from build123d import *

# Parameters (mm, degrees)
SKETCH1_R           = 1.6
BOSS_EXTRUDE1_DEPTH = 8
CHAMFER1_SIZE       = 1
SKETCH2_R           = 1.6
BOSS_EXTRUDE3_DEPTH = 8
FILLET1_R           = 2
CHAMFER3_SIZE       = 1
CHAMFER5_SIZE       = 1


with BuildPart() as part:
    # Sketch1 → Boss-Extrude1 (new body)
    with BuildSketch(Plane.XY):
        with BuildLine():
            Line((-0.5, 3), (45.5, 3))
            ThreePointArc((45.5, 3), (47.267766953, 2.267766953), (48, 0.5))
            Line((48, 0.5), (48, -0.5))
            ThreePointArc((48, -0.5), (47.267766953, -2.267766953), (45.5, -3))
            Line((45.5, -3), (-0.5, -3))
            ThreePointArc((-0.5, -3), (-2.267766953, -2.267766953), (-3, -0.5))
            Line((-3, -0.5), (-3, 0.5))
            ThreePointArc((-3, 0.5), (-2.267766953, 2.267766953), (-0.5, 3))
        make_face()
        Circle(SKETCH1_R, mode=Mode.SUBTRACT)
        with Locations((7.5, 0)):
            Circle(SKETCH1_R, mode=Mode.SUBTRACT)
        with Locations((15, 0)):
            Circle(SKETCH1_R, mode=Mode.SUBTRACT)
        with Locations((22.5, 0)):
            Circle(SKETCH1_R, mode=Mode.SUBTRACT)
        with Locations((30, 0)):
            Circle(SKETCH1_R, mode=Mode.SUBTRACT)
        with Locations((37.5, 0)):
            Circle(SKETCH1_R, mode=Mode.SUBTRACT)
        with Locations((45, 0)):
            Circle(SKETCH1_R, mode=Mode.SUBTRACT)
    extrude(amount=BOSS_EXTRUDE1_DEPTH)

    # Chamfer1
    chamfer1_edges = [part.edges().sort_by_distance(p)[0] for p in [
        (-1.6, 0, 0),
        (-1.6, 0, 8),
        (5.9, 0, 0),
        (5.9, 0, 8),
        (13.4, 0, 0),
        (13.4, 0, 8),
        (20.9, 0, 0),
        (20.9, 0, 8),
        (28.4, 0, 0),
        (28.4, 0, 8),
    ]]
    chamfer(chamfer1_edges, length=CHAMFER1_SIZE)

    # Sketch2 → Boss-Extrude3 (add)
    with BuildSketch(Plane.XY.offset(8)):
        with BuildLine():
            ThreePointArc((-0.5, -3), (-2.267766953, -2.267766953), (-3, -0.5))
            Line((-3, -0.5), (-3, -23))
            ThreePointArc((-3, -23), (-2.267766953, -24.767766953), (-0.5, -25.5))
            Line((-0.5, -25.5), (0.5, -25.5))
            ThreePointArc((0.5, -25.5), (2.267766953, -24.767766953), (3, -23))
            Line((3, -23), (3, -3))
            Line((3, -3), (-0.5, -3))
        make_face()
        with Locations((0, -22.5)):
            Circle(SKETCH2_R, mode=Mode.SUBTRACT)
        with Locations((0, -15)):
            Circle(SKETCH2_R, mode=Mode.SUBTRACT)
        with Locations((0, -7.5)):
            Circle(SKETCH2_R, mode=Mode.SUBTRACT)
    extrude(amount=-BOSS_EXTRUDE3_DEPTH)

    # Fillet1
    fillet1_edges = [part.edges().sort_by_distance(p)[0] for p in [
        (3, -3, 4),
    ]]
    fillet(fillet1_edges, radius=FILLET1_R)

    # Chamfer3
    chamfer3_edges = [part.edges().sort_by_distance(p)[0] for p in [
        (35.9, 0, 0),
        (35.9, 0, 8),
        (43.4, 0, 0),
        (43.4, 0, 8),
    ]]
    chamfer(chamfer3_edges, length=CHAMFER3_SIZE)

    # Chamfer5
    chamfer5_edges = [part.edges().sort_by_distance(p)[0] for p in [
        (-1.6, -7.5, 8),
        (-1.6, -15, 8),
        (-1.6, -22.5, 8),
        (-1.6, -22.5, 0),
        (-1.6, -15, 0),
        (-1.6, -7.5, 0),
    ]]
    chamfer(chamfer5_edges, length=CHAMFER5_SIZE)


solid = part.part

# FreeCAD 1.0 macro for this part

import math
import FreeCAD as App
import Part
import Sketcher
from FreeCAD import Vector


def edges_at(feature, points):
    """Names of the edges that pass closest to the given points."""
    edges = feature.Shape.Edges
    near = lambda p: min(range(len(edges)), key=lambda i: edges[i].distToShape(Part.Vertex(*p))[0])
    return sorted({f"Edge{near(p) + 1}" for p in points})

doc = App.newDocument("Part")
body = doc.addObject("PartDesign::Body", "Body")

sketch1 = doc.addObject("Sketcher::SketchObject", "Sketch")
body.addObject(sketch1)
sketch1.AttachmentSupport = (doc.XY_Plane, [""])
sketch1.MapMode = "FlatFace"
sketch1.addGeometry([
    Part.LineSegment(Vector(45.5, 3, 0), Vector(-0.5, 3, 0)),
    Part.ArcOfCircle(Part.Circle(Vector(-0.5, 0.5, 0), Vector(0, 0, 1), 2.5), math.radians(90), math.radians(180)),
    Part.LineSegment(Vector(-3, 0.5, 0), Vector(-3, -0.5, 0)),
    Part.ArcOfCircle(Part.Circle(Vector(-0.5, -0.5, 0), Vector(0, 0, 1), 2.5), math.radians(180), math.radians(270)),
    Part.LineSegment(Vector(-0.5, -3, 0), Vector(45.5, -3, 0)),
    Part.ArcOfCircle(Part.Circle(Vector(45.5, -0.5, 0), Vector(0, 0, 1), 2.5), math.radians(-90), math.radians(0)),
    Part.LineSegment(Vector(48, -0.5, 0), Vector(48, 0.5, 0)),
    Part.ArcOfCircle(Part.Circle(Vector(45.5, 0.5, 0), Vector(0, 0, 1), 2.5), math.radians(0), math.radians(90)),
    Part.Circle(Vector(45, 0, 0), Vector(0, 0, 1), 1.6),
    Part.Circle(Vector(37.5, 0, 0), Vector(0, 0, 1), 1.6),
    Part.Circle(Vector(30, 0, 0), Vector(0, 0, 1), 1.6),
    Part.Circle(Vector(22.5, 0, 0), Vector(0, 0, 1), 1.6),
    Part.Circle(Vector(15, 0, 0), Vector(0, 0, 1), 1.6),
    Part.Circle(Vector(7.5, 0, 0), Vector(0, 0, 1), 1.6),
    Part.Circle(Vector(0, 0, 0), Vector(0, 0, 1), 1.6),
], False)
sketch1.addConstraint([
    Sketcher.Constraint("Tangent", 0, 2, 1, 1),
    Sketcher.Constraint("Tangent", 1, 2, 2, 1),
    Sketcher.Constraint("Tangent", 2, 2, 3, 1),
    Sketcher.Constraint("Tangent", 3, 2, 4, 1),
    Sketcher.Constraint("Tangent", 4, 2, 5, 1),
    Sketcher.Constraint("Tangent", 5, 2, 6, 1),
    Sketcher.Constraint("Tangent", 6, 2, 7, 1),
    Sketcher.Constraint("Tangent", 7, 2, 0, 1),
    Sketcher.Constraint("Horizontal", 0),
    Sketcher.Constraint("Vertical", 2),
    Sketcher.Constraint("Horizontal", 4),
    Sketcher.Constraint("Vertical", 6),
    Sketcher.Constraint("Coincident", 14, 3, -1, 1),
    Sketcher.Constraint("Equal", 1, 3),
    Sketcher.Constraint("Equal", 3, 5),
    Sketcher.Constraint("Equal", 5, 7),
    Sketcher.Constraint("Equal", 8, 9),
    Sketcher.Constraint("Equal", 9, 10),
    Sketcher.Constraint("Equal", 10, 11),
    Sketcher.Constraint("Equal", 11, 12),
    Sketcher.Constraint("Equal", 12, 13),
    Sketcher.Constraint("Equal", 13, 14),
    Sketcher.Constraint("PointOnObject", 8, 3, -1),
    Sketcher.Constraint("PointOnObject", 9, 3, -1),
    Sketcher.Constraint("PointOnObject", 10, 3, -1),
    Sketcher.Constraint("PointOnObject", 11, 3, -1),
    Sketcher.Constraint("PointOnObject", 12, 3, -1),
    Sketcher.Constraint("PointOnObject", 13, 3, -1),
    Sketcher.Constraint("Diameter", 8, 3.2),
    Sketcher.Constraint("Radius", 1, 2.5),
    Sketcher.Constraint("DistanceX", 0, 2, 0, 1, 46.0),
    Sketcher.Constraint("DistanceY", 2, 2, 2, 1, 1.0),
    Sketcher.Constraint("DistanceX", -1, 1, 8, 3, 45.0),
    Sketcher.Constraint("DistanceX", -1, 1, 10, 3, 30.0),
    Sketcher.Constraint("DistanceX", -1, 1, 12, 3, 15.0),
    Sketcher.Constraint("DistanceY", -1, 1, 0, 2, 3.0),
    Sketcher.Constraint("DistanceX", 1, 2, -1, 1, 3.0),
    Sketcher.Constraint("DistanceX", 9, 3, 5, 3, 8.0),
    Sketcher.Constraint("DistanceX", 11, 3, 9, 3, 15.0),
    Sketcher.Constraint("DistanceX", 1, 3, 13, 3, 8.0),
])
pad1 = doc.addObject("PartDesign::Pad", "Pad")
body.addObject(pad1)
pad1.Profile = sketch1
pad1.Length = 8
doc.recompute()

chamfer = doc.addObject("PartDesign::Chamfer", "Chamfer")
body.addObject(chamfer)
chamfer.Base = (pad1, edges_at(pad1, [
    (-1.6, 0, 0),
    (-1.6, 0, 8),
    (5.9, 0, 0),
    (5.9, 0, 8),
    (13.4, 0, 0),
    (13.4, 0, 8),
    (20.9, 0, 0),
    (20.9, 0, 8),
    (28.4, 0, 0),
    (28.4, 0, 8),
]))
chamfer.Size = 1

sketch2 = doc.addObject("Sketcher::SketchObject", "Sketch001")
body.addObject(sketch2)
sketch2.AttachmentSupport = (doc.XY_Plane, [""])
sketch2.MapMode = "FlatFace"
sketch2.AttachmentOffset = App.Placement(Vector(0, 0, 8), App.Rotation())
sketch2.addGeometry([
    Part.ArcOfCircle(Part.Circle(Vector(-0.5, -0.5, 0), Vector(0, 0, 1), 2.5), math.radians(180), math.radians(270)),
    Part.LineSegment(Vector(-3, -0.5, 0), Vector(-3, -23, 0)),
    Part.ArcOfCircle(Part.Circle(Vector(-0.5, -23, 0), Vector(0, 0, 1), 2.5), math.radians(180), math.radians(270)),
    Part.LineSegment(Vector(-0.5, -25.5, 0), Vector(0.5, -25.5, 0)),
    Part.ArcOfCircle(Part.Circle(Vector(0.5, -23, 0), Vector(0, 0, 1), 2.5), math.radians(-90), math.radians(0)),
    Part.LineSegment(Vector(3, -23, 0), Vector(3, -3, 0)),
    Part.LineSegment(Vector(3, -3, 0), Vector(-0.5, -3, 0)),
    Part.Circle(Vector(0, -22.5, 0), Vector(0, 0, 1), 1.6),
    Part.Circle(Vector(0, -15, 0), Vector(0, 0, 1), 1.6),
    Part.Circle(Vector(0, -7.5, 0), Vector(0, 0, 1), 1.6),
], False)
sketch2.addConstraint([
    Sketcher.Constraint("Tangent", 0, 1, 1, 1),
    Sketcher.Constraint("Tangent", 1, 2, 2, 1),
    Sketcher.Constraint("Tangent", 2, 2, 3, 1),
    Sketcher.Constraint("Tangent", 3, 2, 4, 1),
    Sketcher.Constraint("Tangent", 4, 2, 5, 1),
    Sketcher.Constraint("Coincident", 5, 2, 6, 1),
    Sketcher.Constraint("Tangent", 6, 2, 0, 2),
    Sketcher.Constraint("Vertical", 1),
    Sketcher.Constraint("Horizontal", 3),
    Sketcher.Constraint("Vertical", 5),
    Sketcher.Constraint("Horizontal", 6),
    Sketcher.Constraint("Equal", 0, 2),
    Sketcher.Constraint("Equal", 2, 4),
    Sketcher.Constraint("Equal", 7, 8),
    Sketcher.Constraint("Equal", 8, 9),
    Sketcher.Constraint("PointOnObject", 7, 3, -2),
    Sketcher.Constraint("PointOnObject", 8, 3, -2),
    Sketcher.Constraint("PointOnObject", 9, 3, -2),
    Sketcher.Constraint("Diameter", 7, 3.2),
    Sketcher.Constraint("Radius", 0, 2.5),
    Sketcher.Constraint("DistanceX", 3, 1, 3, 2, 1.0),
    Sketcher.Constraint("DistanceY", 5, 1, 5, 2, 20.0),
    Sketcher.Constraint("DistanceY", 2, 3, -1, 1, 23.0),
    Sketcher.Constraint("DistanceY", 8, 3, -1, 1, 15.0),
    Sketcher.Constraint("DistanceX", 0, 1, -1, 1, 3.0),
    Sketcher.Constraint("DistanceY", 7, 3, 0, 3, 22.0),
    Sketcher.Constraint("DistanceY", 9, 3, 0, 3, 7.0),
])
pad2 = doc.addObject("PartDesign::Pad", "Pad001")
body.addObject(pad2)
pad2.Profile = sketch2
pad2.Length = 8
pad2.Reversed = True
doc.recompute()

fillet = doc.addObject("PartDesign::Fillet", "Fillet")
body.addObject(fillet)
fillet.Base = (pad2, edges_at(pad2, [(3, -3, 4)]))
fillet.Radius = 2
doc.recompute()

chamfer2 = doc.addObject("PartDesign::Chamfer", "Chamfer001")
body.addObject(chamfer2)
chamfer2.Base = (fillet, edges_at(fillet, [
    (35.9, 0, 0),
    (35.9, 0, 8),
    (43.4, 0, 0),
    (43.4, 0, 8),
]))
chamfer2.Size = 1
doc.recompute()

chamfer3 = doc.addObject("PartDesign::Chamfer", "Chamfer002")
body.addObject(chamfer3)
chamfer3.Base = (chamfer2, edges_at(chamfer2, [
    (-1.6, -7.5, 8),
    (-1.6, -15, 8),
    (-1.6, -22.5, 8),
    (-1.6, -22.5, 0),
    (-1.6, -15, 0),
    (-1.6, -7.5, 0),
]))
chamfer3.Size = 1

doc.recompute()
